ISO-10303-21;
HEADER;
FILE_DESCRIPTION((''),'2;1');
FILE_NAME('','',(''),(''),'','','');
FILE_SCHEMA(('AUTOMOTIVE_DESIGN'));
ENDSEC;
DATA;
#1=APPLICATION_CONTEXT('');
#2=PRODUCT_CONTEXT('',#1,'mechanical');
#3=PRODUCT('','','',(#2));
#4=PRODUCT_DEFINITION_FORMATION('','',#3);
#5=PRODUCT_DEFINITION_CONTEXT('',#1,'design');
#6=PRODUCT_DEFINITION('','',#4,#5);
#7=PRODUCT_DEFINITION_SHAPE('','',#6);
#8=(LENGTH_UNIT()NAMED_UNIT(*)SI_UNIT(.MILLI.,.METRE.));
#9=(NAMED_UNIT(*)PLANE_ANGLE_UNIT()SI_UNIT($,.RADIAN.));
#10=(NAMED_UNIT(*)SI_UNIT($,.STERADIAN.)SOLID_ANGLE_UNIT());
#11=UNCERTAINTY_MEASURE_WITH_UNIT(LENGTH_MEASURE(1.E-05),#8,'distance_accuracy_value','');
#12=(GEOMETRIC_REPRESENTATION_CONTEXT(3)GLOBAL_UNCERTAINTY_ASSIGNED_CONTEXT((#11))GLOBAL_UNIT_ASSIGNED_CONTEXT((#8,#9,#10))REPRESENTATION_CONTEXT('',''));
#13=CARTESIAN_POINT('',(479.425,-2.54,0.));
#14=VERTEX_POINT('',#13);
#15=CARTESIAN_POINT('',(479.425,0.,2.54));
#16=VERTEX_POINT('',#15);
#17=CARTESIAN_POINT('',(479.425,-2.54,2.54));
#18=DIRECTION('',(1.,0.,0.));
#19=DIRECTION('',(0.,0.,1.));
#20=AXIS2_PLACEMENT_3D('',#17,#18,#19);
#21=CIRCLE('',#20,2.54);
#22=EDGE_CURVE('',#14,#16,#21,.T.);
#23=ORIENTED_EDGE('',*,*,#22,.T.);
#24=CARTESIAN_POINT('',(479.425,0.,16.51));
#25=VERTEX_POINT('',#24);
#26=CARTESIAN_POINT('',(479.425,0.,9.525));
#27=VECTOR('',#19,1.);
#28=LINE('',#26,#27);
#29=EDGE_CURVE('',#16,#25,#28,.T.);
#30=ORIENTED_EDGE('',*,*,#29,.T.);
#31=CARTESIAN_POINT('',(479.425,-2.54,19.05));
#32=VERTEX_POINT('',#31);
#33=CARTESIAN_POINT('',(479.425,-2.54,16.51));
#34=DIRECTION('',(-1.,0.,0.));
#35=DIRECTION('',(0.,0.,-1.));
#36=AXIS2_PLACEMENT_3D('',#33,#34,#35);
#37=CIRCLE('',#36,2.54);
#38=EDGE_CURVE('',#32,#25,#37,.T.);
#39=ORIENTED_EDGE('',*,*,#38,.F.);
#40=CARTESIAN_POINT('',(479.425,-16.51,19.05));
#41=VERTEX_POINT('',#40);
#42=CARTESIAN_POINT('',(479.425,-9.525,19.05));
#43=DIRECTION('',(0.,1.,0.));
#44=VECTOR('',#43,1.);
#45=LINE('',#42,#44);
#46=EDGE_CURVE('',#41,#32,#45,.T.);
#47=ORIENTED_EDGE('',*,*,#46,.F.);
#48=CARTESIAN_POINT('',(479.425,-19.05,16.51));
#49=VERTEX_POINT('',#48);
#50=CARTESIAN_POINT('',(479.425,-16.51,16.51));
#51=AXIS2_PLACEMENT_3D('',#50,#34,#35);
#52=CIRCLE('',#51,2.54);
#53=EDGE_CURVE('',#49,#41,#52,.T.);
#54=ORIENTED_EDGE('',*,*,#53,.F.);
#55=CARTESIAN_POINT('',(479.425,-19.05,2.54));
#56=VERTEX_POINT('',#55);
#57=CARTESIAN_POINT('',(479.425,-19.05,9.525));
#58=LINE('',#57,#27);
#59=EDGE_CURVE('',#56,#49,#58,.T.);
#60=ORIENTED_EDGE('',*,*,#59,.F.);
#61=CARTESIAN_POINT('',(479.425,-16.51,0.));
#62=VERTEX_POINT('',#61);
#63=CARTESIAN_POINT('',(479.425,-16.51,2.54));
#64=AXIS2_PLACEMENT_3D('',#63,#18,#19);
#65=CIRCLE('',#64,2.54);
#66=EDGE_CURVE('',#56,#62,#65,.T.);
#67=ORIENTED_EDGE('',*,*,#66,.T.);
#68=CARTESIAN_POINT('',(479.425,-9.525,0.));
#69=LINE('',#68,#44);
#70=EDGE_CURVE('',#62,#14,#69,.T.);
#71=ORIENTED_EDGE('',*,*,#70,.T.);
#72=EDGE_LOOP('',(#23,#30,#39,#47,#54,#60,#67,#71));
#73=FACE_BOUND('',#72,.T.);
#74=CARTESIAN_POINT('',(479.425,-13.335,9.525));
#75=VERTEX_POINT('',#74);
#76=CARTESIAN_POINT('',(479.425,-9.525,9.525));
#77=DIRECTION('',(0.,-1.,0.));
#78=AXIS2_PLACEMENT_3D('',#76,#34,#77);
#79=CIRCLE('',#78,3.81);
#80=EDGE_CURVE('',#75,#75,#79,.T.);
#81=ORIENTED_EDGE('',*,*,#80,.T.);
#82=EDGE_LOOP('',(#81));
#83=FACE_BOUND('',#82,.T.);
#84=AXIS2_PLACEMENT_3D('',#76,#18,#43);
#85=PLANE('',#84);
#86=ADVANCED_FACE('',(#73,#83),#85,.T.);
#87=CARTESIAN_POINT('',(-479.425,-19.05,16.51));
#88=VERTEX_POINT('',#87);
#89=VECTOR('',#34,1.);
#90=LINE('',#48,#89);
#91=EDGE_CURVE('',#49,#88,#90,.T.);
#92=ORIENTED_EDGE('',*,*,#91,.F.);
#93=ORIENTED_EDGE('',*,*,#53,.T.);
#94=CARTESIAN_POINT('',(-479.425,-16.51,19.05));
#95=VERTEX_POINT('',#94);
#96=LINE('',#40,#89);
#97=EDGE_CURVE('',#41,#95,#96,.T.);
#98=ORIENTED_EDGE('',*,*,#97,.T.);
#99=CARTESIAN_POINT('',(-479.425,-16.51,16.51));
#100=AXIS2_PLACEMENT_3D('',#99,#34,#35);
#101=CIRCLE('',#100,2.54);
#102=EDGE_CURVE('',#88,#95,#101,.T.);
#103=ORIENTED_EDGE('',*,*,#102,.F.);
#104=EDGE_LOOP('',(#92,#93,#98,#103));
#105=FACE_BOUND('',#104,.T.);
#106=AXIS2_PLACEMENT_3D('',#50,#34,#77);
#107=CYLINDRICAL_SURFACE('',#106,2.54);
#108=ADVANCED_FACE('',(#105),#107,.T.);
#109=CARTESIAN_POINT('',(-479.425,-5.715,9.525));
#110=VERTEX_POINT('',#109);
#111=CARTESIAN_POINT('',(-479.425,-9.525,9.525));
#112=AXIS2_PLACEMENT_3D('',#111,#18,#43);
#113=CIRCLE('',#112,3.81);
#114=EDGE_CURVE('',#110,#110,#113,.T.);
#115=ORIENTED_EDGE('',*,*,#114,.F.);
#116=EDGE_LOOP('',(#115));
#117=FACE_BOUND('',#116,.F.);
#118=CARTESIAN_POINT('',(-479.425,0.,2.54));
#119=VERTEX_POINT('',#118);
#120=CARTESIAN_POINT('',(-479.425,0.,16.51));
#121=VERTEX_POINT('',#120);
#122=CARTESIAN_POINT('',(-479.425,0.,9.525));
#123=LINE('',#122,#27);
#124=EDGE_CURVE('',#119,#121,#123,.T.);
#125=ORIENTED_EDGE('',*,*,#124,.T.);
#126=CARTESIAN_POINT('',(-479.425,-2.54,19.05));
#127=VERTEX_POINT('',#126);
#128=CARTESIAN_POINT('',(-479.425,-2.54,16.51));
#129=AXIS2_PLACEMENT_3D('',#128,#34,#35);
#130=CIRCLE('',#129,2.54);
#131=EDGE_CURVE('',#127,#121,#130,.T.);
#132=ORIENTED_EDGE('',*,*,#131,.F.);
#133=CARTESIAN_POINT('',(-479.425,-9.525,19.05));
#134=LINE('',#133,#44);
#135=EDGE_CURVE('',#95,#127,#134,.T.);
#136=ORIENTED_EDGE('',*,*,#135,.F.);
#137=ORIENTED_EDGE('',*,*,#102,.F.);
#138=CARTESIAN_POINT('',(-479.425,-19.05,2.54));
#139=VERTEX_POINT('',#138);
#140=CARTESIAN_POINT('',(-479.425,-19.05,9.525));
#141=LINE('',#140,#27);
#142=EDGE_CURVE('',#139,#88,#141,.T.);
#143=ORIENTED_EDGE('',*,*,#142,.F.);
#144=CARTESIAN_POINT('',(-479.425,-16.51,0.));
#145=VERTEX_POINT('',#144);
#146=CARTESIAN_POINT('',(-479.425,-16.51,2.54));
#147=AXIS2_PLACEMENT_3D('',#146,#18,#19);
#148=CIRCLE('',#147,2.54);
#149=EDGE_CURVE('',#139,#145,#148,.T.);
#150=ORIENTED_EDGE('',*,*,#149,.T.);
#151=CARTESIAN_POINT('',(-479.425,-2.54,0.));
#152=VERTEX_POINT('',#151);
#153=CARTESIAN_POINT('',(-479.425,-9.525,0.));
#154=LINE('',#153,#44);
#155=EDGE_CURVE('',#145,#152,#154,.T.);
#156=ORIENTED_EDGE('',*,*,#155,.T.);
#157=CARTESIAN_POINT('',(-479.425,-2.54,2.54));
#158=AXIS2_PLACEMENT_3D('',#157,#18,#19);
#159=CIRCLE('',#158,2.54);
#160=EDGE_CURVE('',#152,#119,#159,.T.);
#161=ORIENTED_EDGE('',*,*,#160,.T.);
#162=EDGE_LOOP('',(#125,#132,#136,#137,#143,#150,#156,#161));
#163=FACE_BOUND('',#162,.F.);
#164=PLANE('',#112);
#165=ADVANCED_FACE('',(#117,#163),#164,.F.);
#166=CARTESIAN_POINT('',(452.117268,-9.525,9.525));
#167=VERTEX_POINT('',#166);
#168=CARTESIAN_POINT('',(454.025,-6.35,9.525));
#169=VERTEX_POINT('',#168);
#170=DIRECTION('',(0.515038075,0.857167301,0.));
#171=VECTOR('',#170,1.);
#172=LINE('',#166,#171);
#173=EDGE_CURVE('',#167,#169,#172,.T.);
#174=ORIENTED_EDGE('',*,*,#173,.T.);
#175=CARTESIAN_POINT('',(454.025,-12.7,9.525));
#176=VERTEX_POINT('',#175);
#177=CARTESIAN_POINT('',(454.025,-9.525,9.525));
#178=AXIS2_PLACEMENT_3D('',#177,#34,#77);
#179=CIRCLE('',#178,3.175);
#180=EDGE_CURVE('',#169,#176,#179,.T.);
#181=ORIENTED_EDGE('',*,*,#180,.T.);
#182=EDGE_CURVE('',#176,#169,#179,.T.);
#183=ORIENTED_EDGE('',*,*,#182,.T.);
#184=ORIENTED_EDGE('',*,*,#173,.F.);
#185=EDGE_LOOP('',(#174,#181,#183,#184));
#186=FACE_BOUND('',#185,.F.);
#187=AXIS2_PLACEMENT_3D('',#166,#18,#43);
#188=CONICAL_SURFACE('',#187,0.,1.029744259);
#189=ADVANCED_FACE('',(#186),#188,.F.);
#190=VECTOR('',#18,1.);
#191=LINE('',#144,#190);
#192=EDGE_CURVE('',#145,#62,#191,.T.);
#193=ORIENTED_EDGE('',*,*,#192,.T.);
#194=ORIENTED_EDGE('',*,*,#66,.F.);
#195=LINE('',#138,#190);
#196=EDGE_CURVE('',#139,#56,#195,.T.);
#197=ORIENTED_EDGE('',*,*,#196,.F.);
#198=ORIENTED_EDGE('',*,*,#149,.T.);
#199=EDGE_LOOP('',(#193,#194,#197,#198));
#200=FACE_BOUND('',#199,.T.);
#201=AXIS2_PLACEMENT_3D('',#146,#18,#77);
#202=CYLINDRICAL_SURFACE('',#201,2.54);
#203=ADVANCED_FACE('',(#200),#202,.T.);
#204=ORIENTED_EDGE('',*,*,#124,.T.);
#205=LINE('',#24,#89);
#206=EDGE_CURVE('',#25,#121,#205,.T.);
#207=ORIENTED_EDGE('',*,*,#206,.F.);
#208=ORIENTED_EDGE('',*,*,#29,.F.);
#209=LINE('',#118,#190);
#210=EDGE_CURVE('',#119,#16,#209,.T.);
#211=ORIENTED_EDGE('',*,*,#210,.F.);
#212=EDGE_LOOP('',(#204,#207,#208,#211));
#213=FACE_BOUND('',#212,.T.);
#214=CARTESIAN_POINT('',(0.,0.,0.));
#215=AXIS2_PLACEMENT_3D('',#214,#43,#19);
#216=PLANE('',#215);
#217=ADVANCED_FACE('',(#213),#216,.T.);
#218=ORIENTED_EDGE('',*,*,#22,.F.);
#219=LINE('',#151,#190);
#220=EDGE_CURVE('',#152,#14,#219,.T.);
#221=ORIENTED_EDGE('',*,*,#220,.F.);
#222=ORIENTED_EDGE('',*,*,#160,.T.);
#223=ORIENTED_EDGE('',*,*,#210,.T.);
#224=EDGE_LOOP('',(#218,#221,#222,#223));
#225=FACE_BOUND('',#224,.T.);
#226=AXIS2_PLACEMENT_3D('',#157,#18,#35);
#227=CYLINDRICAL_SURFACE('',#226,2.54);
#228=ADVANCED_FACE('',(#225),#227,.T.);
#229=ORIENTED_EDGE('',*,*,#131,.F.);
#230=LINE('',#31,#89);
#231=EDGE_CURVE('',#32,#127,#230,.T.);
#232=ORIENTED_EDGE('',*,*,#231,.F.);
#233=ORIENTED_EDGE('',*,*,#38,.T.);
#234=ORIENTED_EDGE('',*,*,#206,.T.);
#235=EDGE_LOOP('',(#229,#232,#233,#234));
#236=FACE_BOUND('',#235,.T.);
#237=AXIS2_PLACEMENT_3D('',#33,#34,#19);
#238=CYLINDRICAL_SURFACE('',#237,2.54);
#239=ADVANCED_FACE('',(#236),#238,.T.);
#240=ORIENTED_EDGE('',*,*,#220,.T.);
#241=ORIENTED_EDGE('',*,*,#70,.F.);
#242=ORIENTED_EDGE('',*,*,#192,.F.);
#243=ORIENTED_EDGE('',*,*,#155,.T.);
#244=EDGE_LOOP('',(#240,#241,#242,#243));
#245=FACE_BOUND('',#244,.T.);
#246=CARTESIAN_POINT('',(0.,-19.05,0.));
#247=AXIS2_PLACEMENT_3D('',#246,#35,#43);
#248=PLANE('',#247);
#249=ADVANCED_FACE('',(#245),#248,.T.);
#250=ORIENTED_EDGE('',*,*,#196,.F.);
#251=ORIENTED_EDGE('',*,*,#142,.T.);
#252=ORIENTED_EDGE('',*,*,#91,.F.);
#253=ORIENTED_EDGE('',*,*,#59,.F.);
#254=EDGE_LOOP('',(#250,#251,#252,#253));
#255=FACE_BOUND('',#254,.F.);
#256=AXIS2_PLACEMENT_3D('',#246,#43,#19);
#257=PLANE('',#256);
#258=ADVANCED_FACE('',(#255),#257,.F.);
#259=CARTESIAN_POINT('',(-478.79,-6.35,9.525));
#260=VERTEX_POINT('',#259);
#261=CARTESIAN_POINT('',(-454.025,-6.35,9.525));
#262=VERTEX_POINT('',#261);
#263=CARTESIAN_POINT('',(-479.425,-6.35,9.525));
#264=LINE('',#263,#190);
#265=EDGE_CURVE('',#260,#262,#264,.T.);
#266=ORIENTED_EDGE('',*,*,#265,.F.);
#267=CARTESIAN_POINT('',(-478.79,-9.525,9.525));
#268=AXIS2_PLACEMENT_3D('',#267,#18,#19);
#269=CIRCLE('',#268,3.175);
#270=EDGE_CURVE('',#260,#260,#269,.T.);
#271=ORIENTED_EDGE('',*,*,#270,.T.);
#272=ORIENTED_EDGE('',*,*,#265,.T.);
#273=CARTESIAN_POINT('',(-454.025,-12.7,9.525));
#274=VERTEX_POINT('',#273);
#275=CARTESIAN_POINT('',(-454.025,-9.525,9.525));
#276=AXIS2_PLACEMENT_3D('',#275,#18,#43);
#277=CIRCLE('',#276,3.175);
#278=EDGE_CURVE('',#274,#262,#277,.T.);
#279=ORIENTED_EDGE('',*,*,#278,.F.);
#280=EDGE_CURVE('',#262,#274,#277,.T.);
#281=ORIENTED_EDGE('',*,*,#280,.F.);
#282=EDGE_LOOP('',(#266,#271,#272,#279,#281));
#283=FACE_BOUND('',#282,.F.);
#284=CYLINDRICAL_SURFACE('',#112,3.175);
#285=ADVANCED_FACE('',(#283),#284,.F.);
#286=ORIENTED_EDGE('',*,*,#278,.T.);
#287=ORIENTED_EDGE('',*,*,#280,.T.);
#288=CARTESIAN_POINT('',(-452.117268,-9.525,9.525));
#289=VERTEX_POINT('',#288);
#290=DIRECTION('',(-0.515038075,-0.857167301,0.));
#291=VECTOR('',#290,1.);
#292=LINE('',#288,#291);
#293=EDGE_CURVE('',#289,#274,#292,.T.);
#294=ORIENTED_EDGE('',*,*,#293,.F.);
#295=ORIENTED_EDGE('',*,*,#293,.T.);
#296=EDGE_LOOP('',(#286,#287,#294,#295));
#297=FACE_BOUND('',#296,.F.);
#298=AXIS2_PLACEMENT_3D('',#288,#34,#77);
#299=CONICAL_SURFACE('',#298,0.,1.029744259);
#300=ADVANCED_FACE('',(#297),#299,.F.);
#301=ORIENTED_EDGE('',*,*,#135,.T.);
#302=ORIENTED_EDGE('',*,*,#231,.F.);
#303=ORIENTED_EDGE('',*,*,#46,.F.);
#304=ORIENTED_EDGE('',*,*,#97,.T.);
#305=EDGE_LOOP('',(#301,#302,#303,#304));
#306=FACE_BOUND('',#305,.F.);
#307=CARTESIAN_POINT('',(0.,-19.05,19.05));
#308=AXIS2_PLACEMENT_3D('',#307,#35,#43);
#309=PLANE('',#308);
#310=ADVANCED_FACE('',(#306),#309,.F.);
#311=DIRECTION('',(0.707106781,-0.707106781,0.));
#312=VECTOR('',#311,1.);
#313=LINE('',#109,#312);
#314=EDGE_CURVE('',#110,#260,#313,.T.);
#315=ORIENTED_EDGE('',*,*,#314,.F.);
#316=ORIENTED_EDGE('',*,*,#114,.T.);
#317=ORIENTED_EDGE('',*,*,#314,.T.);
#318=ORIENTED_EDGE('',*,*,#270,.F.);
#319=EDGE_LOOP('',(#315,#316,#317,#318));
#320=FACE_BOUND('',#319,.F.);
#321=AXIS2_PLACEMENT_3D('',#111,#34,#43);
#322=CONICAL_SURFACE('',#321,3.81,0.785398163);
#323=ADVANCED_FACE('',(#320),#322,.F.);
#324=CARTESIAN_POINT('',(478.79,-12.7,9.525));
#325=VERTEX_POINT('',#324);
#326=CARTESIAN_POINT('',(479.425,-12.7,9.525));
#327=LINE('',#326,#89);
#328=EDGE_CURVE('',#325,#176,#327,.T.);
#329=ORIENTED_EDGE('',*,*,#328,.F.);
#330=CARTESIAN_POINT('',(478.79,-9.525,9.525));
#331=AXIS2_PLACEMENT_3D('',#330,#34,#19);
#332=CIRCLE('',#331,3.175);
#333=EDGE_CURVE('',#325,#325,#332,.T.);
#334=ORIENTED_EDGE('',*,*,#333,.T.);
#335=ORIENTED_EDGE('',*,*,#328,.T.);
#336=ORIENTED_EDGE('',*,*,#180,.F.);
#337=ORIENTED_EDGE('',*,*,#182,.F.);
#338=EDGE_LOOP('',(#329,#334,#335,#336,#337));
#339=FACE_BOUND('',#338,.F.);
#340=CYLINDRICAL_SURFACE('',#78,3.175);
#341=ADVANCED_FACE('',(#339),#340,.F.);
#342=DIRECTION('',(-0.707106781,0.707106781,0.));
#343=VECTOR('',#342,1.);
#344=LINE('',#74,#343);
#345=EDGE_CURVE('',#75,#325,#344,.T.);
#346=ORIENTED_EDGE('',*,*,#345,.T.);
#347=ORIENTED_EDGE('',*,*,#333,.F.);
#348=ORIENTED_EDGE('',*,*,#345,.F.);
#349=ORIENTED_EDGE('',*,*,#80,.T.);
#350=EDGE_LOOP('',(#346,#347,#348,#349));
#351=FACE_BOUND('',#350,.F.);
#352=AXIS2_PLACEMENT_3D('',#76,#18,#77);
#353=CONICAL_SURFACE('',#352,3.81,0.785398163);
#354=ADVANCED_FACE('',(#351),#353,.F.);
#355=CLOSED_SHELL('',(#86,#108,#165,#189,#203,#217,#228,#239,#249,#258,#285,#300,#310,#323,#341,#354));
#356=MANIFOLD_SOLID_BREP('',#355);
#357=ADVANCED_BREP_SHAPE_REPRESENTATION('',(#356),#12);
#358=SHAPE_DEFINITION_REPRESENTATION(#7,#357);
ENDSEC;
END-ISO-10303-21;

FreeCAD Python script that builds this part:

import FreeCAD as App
import Part
import Sketcher
from FreeCAD import Vector
Q = App.Units.Quantity


def edges_at(feature, points):
    """Names of the edges that pass closest to the given points."""
    edges = feature.Shape.Edges
    near = lambda p: min(range(len(edges)), key=lambda i: edges[i].distToShape(Part.Vertex(*p))[0])
    return sorted({f"Edge{near(p) + 1}" for p in points})

doc = App.newDocument("Part")
body = doc.addObject("PartDesign::Body", "Body")

sketch1 = body.newObject("Sketcher::SketchObject", "Sketch")
sketch1.AttachmentSupport = (doc.getObject("YZ_Plane"), [""])
sketch1.MapMode = "FlatFace"
sketch1.addGeometry([
    Part.LineSegment(Vector(-19.05, 19.05, 0), Vector(-19.05, 0, 0)),
    Part.LineSegment(Vector(-19.05, 0, 0), Vector(0, 0, 0)),
    Part.LineSegment(Vector(0, 0, 0), Vector(0, 19.05, 0)),
    Part.LineSegment(Vector(0, 19.05, 0), Vector(-19.05, 19.05, 0)),
], False)
sketch1.addConstraint([
    Sketcher.Constraint("Coincident", 0, 2, 1, 1),
    Sketcher.Constraint("Coincident", 1, 2, 2, 1),
    Sketcher.Constraint("Coincident", 2, 2, 3, 1),
    Sketcher.Constraint("Coincident", 3, 2, 0, 1),
    Sketcher.Constraint("Vertical", 0),
    Sketcher.Constraint("Horizontal", 1),
    Sketcher.Constraint("Vertical", 2),
    Sketcher.Constraint("Horizontal", 3),
    Sketcher.Constraint("Coincident", 1, 2, -1, 1),
    Sketcher.Constraint("Equal", 3, 0),
    Sketcher.Constraint("DistanceX", 1, 1, 1, 2, Q("0.75 in")),
])
pad1 = body.newObject("PartDesign::Pad", "Pad")
pad1.Profile = sketch1
pad1.Length = Q("37.75 in")
pad1.Midplane = True

sketch2 = body.newObject("Sketcher::SketchObject", "Sketch001")
sketch2.AttachmentSupport = (doc.getObject("YZ_Plane"), [""])
sketch2.MapMode = "FlatFace"
sketch2.AttachmentOffset = App.Placement(Vector(0, 0, -18.875 * 25.4), App.Rotation())
sketch2.addGeometry(Part.Circle(Vector(-9.525, 9.525, 0), Vector(0, 0, 1), 3.175), False)
sketch2.addConstraint([
    Sketcher.Constraint("Diameter", 0, Q("0.25 in")),
    Sketcher.Constraint("DistanceX", 0, 3, -1, 1, Q("0.375 in")),
    Sketcher.Constraint("DistanceY", -1, 1, 0, 3, Q("0.375 in")),
])
doc.recompute()
hole = body.newObject("PartDesign::Hole", "Hole")
hole.Profile = sketch2
hole.ThreadType = "None"
hole.Diameter = Q("0.25 in")
hole.DepthType = "Dimension"
hole.Depth = Q("1 in")
hole.DrillPoint = "Angled"
hole.DrillPointAngle = 118
hole.HoleCutType = "Countersink"
hole.HoleCutDiameter = Q("0.3 in")
hole.HoleCutCountersinkAngle = 90
hole.Reversed = True

sketch3 = body.newObject("Sketcher::SketchObject", "Sketch002")
sketch3.AttachmentSupport = (doc.getObject("YZ_Plane"), [""])
sketch3.MapMode = "FlatFace"
sketch3.AttachmentOffset = App.Placement(Vector(0, 0, 18.875 * 25.4), App.Rotation())
sketch3.addGeometry(Part.Circle(Vector(-9.525, 9.525, 0), Vector(0, 0, 1), 3.175), False)
sketch3.addConstraint([
    Sketcher.Constraint("Diameter", 0, Q("0.25 in")),
    Sketcher.Constraint("DistanceX", 0, 3, -1, 1, Q("0.375 in")),
    Sketcher.Constraint("DistanceY", -1, 1, 0, 3, Q("0.375 in")),
])
doc.recompute()
hole2 = body.newObject("PartDesign::Hole", "Hole001")
hole2.Profile = sketch3
hole2.ThreadType = "None"
hole2.Diameter = Q("0.25 in")
hole2.DepthType = "Dimension"
hole2.Depth = Q("1 in")
hole2.DrillPoint = "Angled"
hole2.DrillPointAngle = 118
hole2.HoleCutType = "Countersink"
hole2.HoleCutDiameter = Q("0.3 in")
hole2.HoleCutCountersinkAngle = 90
doc.recompute()

fillet = body.newObject("PartDesign::Fillet", "Fillet")
fillet.Base = (hole2, edges_at(hole2, [
    (0, -19.05, 19.05),
    (0, -19.05, 0),
    (0, 0, 0),
    (0, 0, 19.05),
]))
fillet.Radius = Q("0.1 in")

doc.recompute()
